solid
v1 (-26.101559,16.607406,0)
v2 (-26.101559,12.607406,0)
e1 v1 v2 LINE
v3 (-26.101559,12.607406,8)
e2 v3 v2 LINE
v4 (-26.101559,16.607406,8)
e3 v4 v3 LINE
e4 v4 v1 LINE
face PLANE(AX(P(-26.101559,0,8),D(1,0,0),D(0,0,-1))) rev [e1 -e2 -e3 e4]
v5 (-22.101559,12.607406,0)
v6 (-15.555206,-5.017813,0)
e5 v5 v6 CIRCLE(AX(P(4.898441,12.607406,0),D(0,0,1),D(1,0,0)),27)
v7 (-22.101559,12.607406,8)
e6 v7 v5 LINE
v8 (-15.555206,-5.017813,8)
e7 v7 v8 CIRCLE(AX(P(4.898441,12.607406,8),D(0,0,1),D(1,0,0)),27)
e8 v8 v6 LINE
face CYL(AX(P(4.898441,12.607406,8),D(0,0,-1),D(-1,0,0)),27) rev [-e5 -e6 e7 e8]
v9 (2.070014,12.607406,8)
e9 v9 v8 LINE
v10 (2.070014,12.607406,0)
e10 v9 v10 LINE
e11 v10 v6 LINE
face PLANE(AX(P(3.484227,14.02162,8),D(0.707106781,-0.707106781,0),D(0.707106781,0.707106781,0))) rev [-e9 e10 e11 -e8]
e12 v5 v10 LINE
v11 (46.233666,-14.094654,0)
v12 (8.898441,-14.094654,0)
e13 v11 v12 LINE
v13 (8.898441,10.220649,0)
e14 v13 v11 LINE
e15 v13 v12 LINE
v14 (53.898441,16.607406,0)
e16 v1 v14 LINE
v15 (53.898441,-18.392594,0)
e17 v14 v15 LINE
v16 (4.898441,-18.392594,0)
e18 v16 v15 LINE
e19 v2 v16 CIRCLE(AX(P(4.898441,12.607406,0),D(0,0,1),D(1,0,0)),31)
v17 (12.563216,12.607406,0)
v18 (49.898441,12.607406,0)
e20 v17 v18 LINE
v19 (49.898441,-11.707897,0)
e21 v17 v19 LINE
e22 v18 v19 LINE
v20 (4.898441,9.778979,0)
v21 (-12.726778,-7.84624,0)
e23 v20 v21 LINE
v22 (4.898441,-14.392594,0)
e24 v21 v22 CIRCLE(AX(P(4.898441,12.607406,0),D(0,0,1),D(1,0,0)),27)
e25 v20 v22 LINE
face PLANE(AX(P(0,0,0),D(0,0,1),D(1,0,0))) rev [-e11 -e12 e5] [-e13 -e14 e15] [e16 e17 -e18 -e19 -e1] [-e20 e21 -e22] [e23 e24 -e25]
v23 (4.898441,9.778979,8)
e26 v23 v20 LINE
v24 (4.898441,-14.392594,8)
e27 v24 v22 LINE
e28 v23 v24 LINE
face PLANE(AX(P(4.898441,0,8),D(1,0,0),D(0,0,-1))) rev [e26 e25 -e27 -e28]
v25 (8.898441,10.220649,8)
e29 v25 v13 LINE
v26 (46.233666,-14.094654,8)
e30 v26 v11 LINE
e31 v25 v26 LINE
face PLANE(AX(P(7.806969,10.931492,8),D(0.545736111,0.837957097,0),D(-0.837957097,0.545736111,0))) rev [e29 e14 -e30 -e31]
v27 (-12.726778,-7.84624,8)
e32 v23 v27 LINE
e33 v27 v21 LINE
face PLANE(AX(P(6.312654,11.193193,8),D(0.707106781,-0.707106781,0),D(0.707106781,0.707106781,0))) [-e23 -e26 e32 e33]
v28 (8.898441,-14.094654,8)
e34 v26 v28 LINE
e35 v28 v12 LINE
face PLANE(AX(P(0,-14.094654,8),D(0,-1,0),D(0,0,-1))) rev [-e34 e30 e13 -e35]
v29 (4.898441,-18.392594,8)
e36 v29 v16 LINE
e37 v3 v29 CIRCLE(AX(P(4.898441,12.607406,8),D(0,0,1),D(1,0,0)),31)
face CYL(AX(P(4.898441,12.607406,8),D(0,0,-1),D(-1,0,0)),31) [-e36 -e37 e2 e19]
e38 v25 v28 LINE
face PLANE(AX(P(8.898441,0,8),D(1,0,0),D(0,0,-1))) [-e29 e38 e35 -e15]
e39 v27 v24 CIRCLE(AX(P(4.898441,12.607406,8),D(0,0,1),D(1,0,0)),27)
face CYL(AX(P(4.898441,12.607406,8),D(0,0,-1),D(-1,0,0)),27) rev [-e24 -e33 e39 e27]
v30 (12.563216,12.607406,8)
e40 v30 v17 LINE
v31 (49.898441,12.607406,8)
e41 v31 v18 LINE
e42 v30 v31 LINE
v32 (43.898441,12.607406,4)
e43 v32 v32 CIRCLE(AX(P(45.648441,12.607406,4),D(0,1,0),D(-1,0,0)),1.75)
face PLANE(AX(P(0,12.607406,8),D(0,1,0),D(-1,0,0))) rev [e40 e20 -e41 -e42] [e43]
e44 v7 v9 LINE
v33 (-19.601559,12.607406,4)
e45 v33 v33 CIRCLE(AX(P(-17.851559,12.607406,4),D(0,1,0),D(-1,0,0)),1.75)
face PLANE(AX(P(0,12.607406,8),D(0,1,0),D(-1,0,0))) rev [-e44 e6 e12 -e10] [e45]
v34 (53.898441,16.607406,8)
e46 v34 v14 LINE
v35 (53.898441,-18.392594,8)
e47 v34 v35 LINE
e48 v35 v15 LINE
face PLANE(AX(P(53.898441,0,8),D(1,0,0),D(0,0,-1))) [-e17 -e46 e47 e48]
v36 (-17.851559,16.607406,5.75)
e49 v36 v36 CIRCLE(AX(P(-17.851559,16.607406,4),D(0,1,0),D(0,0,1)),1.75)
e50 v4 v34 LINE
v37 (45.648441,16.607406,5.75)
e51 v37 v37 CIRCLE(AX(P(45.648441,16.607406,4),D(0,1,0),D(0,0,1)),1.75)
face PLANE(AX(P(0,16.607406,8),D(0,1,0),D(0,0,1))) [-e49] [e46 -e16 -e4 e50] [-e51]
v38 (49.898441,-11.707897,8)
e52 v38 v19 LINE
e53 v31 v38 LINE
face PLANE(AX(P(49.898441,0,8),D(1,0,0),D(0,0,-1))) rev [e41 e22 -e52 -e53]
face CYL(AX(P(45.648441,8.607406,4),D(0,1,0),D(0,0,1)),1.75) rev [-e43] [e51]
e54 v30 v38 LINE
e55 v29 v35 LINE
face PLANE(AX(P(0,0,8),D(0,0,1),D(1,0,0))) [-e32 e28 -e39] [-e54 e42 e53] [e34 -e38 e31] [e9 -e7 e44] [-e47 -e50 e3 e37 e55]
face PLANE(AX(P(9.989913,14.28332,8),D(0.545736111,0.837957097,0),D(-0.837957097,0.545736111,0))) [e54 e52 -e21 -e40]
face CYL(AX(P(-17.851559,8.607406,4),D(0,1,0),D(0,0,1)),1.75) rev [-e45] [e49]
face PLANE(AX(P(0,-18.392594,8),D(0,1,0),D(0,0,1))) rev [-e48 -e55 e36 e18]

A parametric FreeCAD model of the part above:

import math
import FreeCAD as App
import Part
import Sketcher
from FreeCAD import Vector


def add_polygon(sketch, points):
    """Adds a closed chain of lines whose ends are joined by coincident constraints."""
    first, n = sketch.GeometryCount, len(points)
    for a, b in zip(points, points[1:] + points[:1]):
        sketch.addGeometry(Part.LineSegment(App.Vector(*a, 0), App.Vector(*b, 0)), False)
    for i in range(n):
        sketch.addConstraint(Sketcher.Constraint("Coincident", first + i, 2, first + (i + 1) % n, 1))

doc = App.newDocument("Part")
body = doc.addObject("PartDesign::Body", "Body")

# Sketch on XY plane
sketch1 = body.newObject("Sketcher::SketchObject", "Sketch")
sketch1.AttachmentSupport = (doc.getObject("XY_Plane"), [""])
sketch1.MapMode = "FlatFace"
sketch1.addGeometry(Part.ArcOfCircle(Part.Circle(Vector(4.9, 12.6, 0), Vector(0, 0, 1), 31), math.radians(180), math.radians(270)), False)  # 0
sketch1.addGeometry(Part.LineSegment(Vector(4.9, -18.4, 0), Vector(53.9, -18.4, 0)), False)  # 1
sketch1.addGeometry(Part.LineSegment(Vector(53.9, -18.4, 0), Vector(53.9, 16.6, 0)), False)  # 2
sketch1.addGeometry(Part.LineSegment(Vector(53.9, 16.6, 0), Vector(-26.1, 16.6, 0)), False)  # 3
sketch1.addGeometry(Part.LineSegment(Vector(-26.1, 16.6, 0), Vector(-26.1, 12.6, 0)), False)  # 4
sketch1.addGeometry(Part.ArcOfCircle(Part.Circle(Vector(4.9, 12.6, 0), Vector(0, 0, 1), 27), math.radians(-131), math.radians(-90)), False)  # 5
sketch1.addGeometry(Part.LineSegment(Vector(-12.7, -7.8, 0), Vector(4.9, 9.8, 0)), False)  # 6
sketch1.addGeometry(Part.LineSegment(Vector(4.9, 9.8, 0), Vector(4.9, -14.4, 0)), False)  # 7
add_polygon(sketch1, [(46.2, -14.1), (8.9, -14.1), (8.9, 10.2)])  # lines 8-10
sketch1.addGeometry(Part.LineSegment(Vector(-22.1, 12.6, 0), Vector(2.1, 12.6, 0)), False)  # 11
sketch1.addGeometry(Part.LineSegment(Vector(2.1, 12.6, 0), Vector(-15.6, -5, 0)), False)  # 12
sketch1.addGeometry(Part.ArcOfCircle(Part.Circle(Vector(4.9, 12.6, 0), Vector(0, 0, 1), 27), math.radians(-180), math.radians(-139)), False)  # 13
add_polygon(sketch1, [(12.6, 12.6), (49.9, 12.6), (49.9, -11.7)])  # lines 14-16
sketch1.addConstraint([
    Sketcher.Constraint("Tangent", 0, 2, 1, 1),
    Sketcher.Constraint("Coincident", 1, 2, 2, 1),
    Sketcher.Constraint("Coincident", 2, 2, 3, 1),
    Sketcher.Constraint("Coincident", 3, 2, 4, 1),
    Sketcher.Constraint("Tangent", 4, 2, 0, 1),
    Sketcher.Constraint("Coincident", 5, 1, 6, 1),
    Sketcher.Constraint("Coincident", 6, 2, 7, 1),
    Sketcher.Constraint("Coincident", 7, 2, 5, 2),
    Sketcher.Constraint("Coincident", 11, 2, 12, 1),
    Sketcher.Constraint("Coincident", 12, 2, 13, 2),
    Sketcher.Constraint("Coincident", 13, 1, 11, 1),
    Sketcher.Constraint("Horizontal", 1),
    Sketcher.Constraint("Vertical", 2),
    Sketcher.Constraint("Horizontal", 3),
    Sketcher.Constraint("Vertical", 4),
    Sketcher.Constraint("Vertical", 7),
    Sketcher.Constraint("Horizontal", 8),
    Sketcher.Constraint("Vertical", 9),
    Sketcher.Constraint("Horizontal", 11),
    Sketcher.Constraint("Horizontal", 14),
    Sketcher.Constraint("Vertical", 15),
    Sketcher.Constraint("Coincident", 5, 3, 0, 3),
    Sketcher.Constraint("Coincident", 13, 3, 0, 3),
    Sketcher.Constraint("Equal", 5, 13),
    Sketcher.Constraint("Parallel", 6, 12),
    Sketcher.Constraint("Parallel", 10, 16),
    Sketcher.Constraint("Horizontal", 4, 2, 11, 2),
    Sketcher.Constraint("Horizontal", 13, 1, 14, 2),
    Sketcher.Constraint("Vertical", 0, 2, 6, 2),
    Sketcher.Constraint("Equal", 8, 14),
    Sketcher.Constraint("Equal", 11, 7),
    Sketcher.Constraint("Equal", 6, 12),
    Sketcher.Constraint("Radius", 0, 31.0),
    Sketcher.Constraint("Radius", 5, 27.0),
    Sketcher.Constraint("DistanceX", 1, 1, 1, 2, 49.0),
    Sketcher.Constraint("DistanceY", 2, 1, 2, 2, 35.0),
    Sketcher.Constraint("DistanceX", 7, 2, 8, 2, 4.0),
    Sketcher.Constraint("DistanceX", 14, 2, 2, 2, 4.0),
    Sketcher.Constraint("DistanceX", 8, 2, 8, 1, 37.335225),
    Sketcher.Constraint("DistanceX", 11, 1, 11, 2, 24.171573),
    Sketcher.Constraint("DistanceY", 9, 1, 9, 2, 24.315303),
    Sketcher.Constraint("DistanceX", -1, 1, 0, 3, 4.898441),
    Sketcher.Constraint("DistanceY", 5, 1, -1, 1, 7.84624),
    Sketcher.Constraint("DistanceY", -1, 1, 9, 2, 10.220649),
])
pad1 = body.newObject("PartDesign::Pad", "Pad")
pad1.Profile = sketch1
pad1.Length = 8

# Sketch on XZ plane
sketch2 = body.newObject("Sketcher::SketchObject", "Sketch001")
sketch2.AttachmentSupport = (doc.getObject("XZ_Plane"), [""])
sketch2.MapMode = "FlatFace"
sketch2.AttachmentOffset = App.Placement(Vector(0, 0, -16.607406), App.Rotation())
sketch2.addGeometry([
    Part.Circle(Vector(-17.9, 4, 0), Vector(0, 0, 1), 1.8),
    Part.Circle(Vector(45.6, 4, 0), Vector(0, 0, 1), 1.8),
], False)
sketch2.addConstraint([
    Sketcher.Constraint("Equal", 0, 1),
    Sketcher.Constraint("Horizontal", 0, 3, 1, 3),
    Sketcher.Constraint("Diameter", 0, 3.5),
    Sketcher.Constraint("DistanceY", -1, 1, 0, 3, 4.0),
    Sketcher.Constraint("DistanceX", 0, 3, 1, 3, 63.5),
    Sketcher.Constraint("DistanceX", 0, 3, -1, 1, 17.851559),
])
pocket1 = body.newObject("PartDesign::Pocket", "Pocket")
pocket1.Profile = sketch2
pocket1.Length = 8
pocket1.Reversed = True

doc.recompute()
